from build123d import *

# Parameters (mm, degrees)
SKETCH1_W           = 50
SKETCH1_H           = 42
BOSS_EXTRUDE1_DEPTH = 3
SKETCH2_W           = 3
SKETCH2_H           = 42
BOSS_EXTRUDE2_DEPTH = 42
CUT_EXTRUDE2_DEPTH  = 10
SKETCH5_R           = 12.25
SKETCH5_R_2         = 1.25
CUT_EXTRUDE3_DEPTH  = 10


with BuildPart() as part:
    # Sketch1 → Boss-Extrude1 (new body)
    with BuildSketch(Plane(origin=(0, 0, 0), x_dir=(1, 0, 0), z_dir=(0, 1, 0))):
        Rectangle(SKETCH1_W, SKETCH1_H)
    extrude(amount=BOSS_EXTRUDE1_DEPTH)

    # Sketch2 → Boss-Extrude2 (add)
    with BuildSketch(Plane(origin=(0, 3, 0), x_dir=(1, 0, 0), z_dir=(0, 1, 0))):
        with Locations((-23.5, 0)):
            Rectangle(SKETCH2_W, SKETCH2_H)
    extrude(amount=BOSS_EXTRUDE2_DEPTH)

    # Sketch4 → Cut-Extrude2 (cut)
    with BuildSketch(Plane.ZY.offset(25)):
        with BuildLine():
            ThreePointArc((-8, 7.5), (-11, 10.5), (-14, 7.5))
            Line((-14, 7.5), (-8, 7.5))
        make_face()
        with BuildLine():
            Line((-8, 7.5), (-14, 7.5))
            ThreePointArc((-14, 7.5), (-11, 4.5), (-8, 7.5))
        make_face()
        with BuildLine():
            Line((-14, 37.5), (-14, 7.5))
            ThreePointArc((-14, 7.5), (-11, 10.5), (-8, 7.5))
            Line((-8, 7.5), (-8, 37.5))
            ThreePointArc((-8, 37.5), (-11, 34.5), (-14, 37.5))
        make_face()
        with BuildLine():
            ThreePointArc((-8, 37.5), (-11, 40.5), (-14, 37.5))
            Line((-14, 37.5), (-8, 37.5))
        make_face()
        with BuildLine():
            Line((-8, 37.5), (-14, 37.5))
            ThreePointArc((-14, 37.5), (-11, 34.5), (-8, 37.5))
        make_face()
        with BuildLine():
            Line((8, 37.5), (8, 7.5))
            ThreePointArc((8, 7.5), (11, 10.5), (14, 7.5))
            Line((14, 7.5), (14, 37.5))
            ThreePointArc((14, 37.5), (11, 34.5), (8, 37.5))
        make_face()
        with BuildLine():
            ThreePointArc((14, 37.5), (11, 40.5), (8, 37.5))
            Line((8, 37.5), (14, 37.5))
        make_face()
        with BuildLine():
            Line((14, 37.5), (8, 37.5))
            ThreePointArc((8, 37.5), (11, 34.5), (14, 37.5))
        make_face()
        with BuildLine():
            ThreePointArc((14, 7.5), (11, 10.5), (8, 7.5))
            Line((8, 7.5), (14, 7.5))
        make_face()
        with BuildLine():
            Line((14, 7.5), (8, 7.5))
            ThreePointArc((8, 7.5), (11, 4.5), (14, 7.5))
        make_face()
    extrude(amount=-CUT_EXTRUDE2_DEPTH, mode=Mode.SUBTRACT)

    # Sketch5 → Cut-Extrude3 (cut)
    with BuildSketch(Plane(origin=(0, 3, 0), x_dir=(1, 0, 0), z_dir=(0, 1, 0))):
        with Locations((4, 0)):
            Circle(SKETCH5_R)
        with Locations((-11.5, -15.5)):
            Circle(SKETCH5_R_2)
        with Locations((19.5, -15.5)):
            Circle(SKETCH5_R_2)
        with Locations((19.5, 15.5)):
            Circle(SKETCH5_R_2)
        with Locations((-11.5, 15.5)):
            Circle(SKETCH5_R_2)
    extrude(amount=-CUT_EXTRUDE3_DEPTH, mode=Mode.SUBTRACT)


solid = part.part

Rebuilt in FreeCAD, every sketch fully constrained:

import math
import FreeCAD as App
import Part
import Sketcher

V = App.Vector

doc = App.newDocument("Part")
params = doc.addObject("Spreadsheet::Sheet", "Params")
for row, (alias, value) in enumerate([
    ("sketch1_width", "50 mm"),
    ("sketch1_height", "42 mm"),
    ("pad1_length", "3 mm"),
    ("sketch2_width", "3 mm"),
    ("sketch2_height", "42 mm"),
    ("pad2_length", "42 mm"),
    ("sketch3_radius", "3 mm"),
    ("sketch3_width", "30 mm"),
    ("pocket1_length", "10 mm"),
    ("sketch4_diameter", "24.5 mm"),
    ("sketch4_diameter2", "2.5 mm"),
    ("pocket2_length", "10 mm"),
], start=1):
    params.set(f"A{row}", alias)
    params.set(f"B{row}", "=" + value)
    params.setAlias(f"B{row}", alias)

body = doc.addObject("PartDesign::Body", "Body")

# Sketch on XZ plane
sketch1 = body.newObject("Sketcher::SketchObject", "Sketch")
sketch1.AttachmentSupport = (doc.getObject("XZ_Plane"), [""])
sketch1.MapMode = "FlatFace"
sketch1.addGeometry(Part.LineSegment(V(-25, -21, 0), V(-25, 21, 0)), False)
sketch1.addGeometry(Part.LineSegment(V(-25, 21, 0), V(25, 21, 0)), False)
sketch1.addGeometry(Part.LineSegment(V(25, 21, 0), V(25, -21, 0)), False)
sketch1.addGeometry(Part.LineSegment(V(25, -21, 0), V(-25, -21, 0)), False)
sketch1.addConstraint(Sketcher.Constraint("Coincident", 0, 2, 1, 1))
sketch1.addConstraint(Sketcher.Constraint("Coincident", 1, 2, 2, 1))
sketch1.addConstraint(Sketcher.Constraint("Coincident", 2, 2, 3, 1))
sketch1.addConstraint(Sketcher.Constraint("Coincident", 3, 2, 0, 1))
sketch1.addConstraint(Sketcher.Constraint("Vertical", 0))
sketch1.addConstraint(Sketcher.Constraint("Horizontal", 1))
sketch1.addConstraint(Sketcher.Constraint("Vertical", 2))
sketch1.addConstraint(Sketcher.Constraint("Horizontal", 3))
sketch1.addConstraint(Sketcher.Constraint("Symmetric", 0, 2, 2, 2, -1, 1))
sketch1.addConstraint(Sketcher.Constraint("DistanceX", 1, 1, 1, 2, 50.0))
sketch1.addConstraint(Sketcher.Constraint("DistanceY", 0, 1, 0, 2, 42.0))
sketch1.setExpression("Constraints[9]", "Params.sketch1_width")
sketch1.setExpression("Constraints[10]", "Params.sketch1_height")
pad1 = body.newObject("PartDesign::Pad", "Pad")
pad1.Profile = sketch1
pad1.setExpression("Length", "Params.pad1_length")
pad1.Reversed = True

# Sketch on XZ plane
sketch2 = body.newObject("Sketcher::SketchObject", "Sketch001")
sketch2.AttachmentSupport = (doc.getObject("XZ_Plane"), [""])
sketch2.MapMode = "FlatFace"
sketch2.AttachmentOffset = App.Placement(V(0, 0, -3), App.Rotation())
sketch2.addGeometry(Part.LineSegment(V(-25, -21, 0), V(-25, 21, 0)), False)
sketch2.addGeometry(Part.LineSegment(V(-25, 21, 0), V(-22, 21, 0)), False)
sketch2.addGeometry(Part.LineSegment(V(-22, 21, 0), V(-22, -21, 0)), False)
sketch2.addGeometry(Part.LineSegment(V(-22, -21, 0), V(-25, -21, 0)), False)
sketch2.addConstraint(Sketcher.Constraint("Coincident", 0, 2, 1, 1))
sketch2.addConstraint(Sketcher.Constraint("Coincident", 1, 2, 2, 1))
sketch2.addConstraint(Sketcher.Constraint("Coincident", 2, 2, 3, 1))
sketch2.addConstraint(Sketcher.Constraint("Coincident", 3, 2, 0, 1))
sketch2.addConstraint(Sketcher.Constraint("Vertical", 0))
sketch2.addConstraint(Sketcher.Constraint("Horizontal", 1))
sketch2.addConstraint(Sketcher.Constraint("Vertical", 2))
sketch2.addConstraint(Sketcher.Constraint("Horizontal", 3))
sketch2.addConstraint(Sketcher.Constraint("DistanceX", 1, 1, 1, 2, 3.0))
sketch2.addConstraint(Sketcher.Constraint("DistanceY", 0, 1, 0, 2, 42.0))
sketch2.addConstraint(Sketcher.Constraint("DistanceX", 0, 2, -1, 1, 25.0))
sketch2.addConstraint(Sketcher.Constraint("DistanceY", -1, 1, 0, 2, 21.0))
sketch2.setExpression("Constraints[8]", "Params.sketch2_width")
sketch2.setExpression("Constraints[9]", "Params.sketch2_height")
pad2 = body.newObject("PartDesign::Pad", "Pad001")
pad2.Profile = sketch2
pad2.setExpression("Length", "Params.pad2_length")
pad2.Reversed = True

# Sketch on YZ plane
sketch3 = body.newObject("Sketcher::SketchObject", "Sketch002")
sketch3.AttachmentSupport = (doc.getObject("YZ_Plane"), [""])
sketch3.MapMode = "FlatFace"
sketch3.AttachmentOffset = App.Placement(V(0, 0, -25), App.Rotation())
sketch3.addGeometry(Part.LineSegment(V(7.5, -8, 0), V(37.5, -8, 0)), False)
sketch3.addGeometry(Part.ArcOfCircle(Part.Circle(V(37.5, -11, 0), V(0, 0, 1), 3), math.radians(-90), math.radians(90)), False)
sketch3.addGeometry(Part.LineSegment(V(37.5, -14, 0), V(7.5, -14, 0)), False)
sketch3.addGeometry(Part.ArcOfCircle(Part.Circle(V(7.5, -11, 0), V(0, 0, 1), 3), math.radians(90), math.radians(270)), False)
sketch3.addGeometry(Part.ArcOfCircle(Part.Circle(V(37.5, 11, 0), V(0, 0, 1), 3), math.radians(-90), math.radians(90)), False)
sketch3.addGeometry(Part.LineSegment(V(37.5, 8, 0), V(7.5, 8, 0)), False)
sketch3.addGeometry(Part.ArcOfCircle(Part.Circle(V(7.5, 11, 0), V(0, 0, 1), 3), math.radians(90), math.radians(270)), False)
sketch3.addGeometry(Part.LineSegment(V(7.5, 14, 0), V(37.5, 14, 0)), False)
sketch3.addConstraint(Sketcher.Constraint("Tangent", 0, 2, 1, 2))
sketch3.addConstraint(Sketcher.Constraint("Tangent", 1, 1, 2, 1))
sketch3.addConstraint(Sketcher.Constraint("Tangent", 2, 2, 3, 2))
sketch3.addConstraint(Sketcher.Constraint("Tangent", 3, 1, 0, 1))
sketch3.addConstraint(Sketcher.Constraint("Tangent", 4, 1, 5, 1))
sketch3.addConstraint(Sketcher.Constraint("Tangent", 5, 2, 6, 2))
sketch3.addConstraint(Sketcher.Constraint("Tangent", 6, 1, 7, 1))
sketch3.addConstraint(Sketcher.Constraint("Tangent", 7, 2, 4, 2))
sketch3.addConstraint(Sketcher.Constraint("Horizontal", 0))
sketch3.addConstraint(Sketcher.Constraint("Horizontal", 2))
sketch3.addConstraint(Sketcher.Constraint("Horizontal", 5))
sketch3.addConstraint(Sketcher.Constraint("Horizontal", 7))
sketch3.addConstraint(Sketcher.Constraint("Equal", 3, 4))
sketch3.addConstraint(Sketcher.Constraint("Symmetric", 1, 3, 4, 3, -1))
sketch3.addConstraint(Sketcher.Constraint("Vertical", 3, 3, 6, 3))
sketch3.addConstraint(Sketcher.Constraint("Radius", 1, 3.0))
sketch3.addConstraint(Sketcher.Constraint("DistanceX", 0, 1, 0, 2, 30.0))
sketch3.addConstraint(Sketcher.Constraint("DistanceY", 1, 3, -1, 1, 11.0))
sketch3.addConstraint(Sketcher.Constraint("DistanceX", -1, 1, 1, 3, 37.5))
sketch3.setExpression("Constraints[15]", "Params.sketch3_radius")
sketch3.setExpression("Constraints[16]", "Params.sketch3_width")
pocket1 = body.newObject("PartDesign::Pocket", "Pocket")
pocket1.Profile = sketch3
pocket1.setExpression("Length", "Params.pocket1_length")
pocket1.Reversed = True

# Sketch on XZ plane
sketch4 = body.newObject("Sketcher::SketchObject", "Sketch003")
sketch4.AttachmentSupport = (doc.getObject("XZ_Plane"), [""])
sketch4.MapMode = "FlatFace"
sketch4.AttachmentOffset = App.Placement(V(0, 0, -3), App.Rotation())
sketch4.addGeometry(Part.Circle(V(4, 0, 0), V(0, 0, 1), 12.2), False)
sketch4.addGeometry(Part.Circle(V(-11.5, 15.5, 0), V(0, 0, 1), 1.2), False)
sketch4.addGeometry(Part.Circle(V(19.5, 15.5, 0), V(0, 0, 1), 1.2), False)
sketch4.addGeometry(Part.Circle(V(19.5, -15.5, 0), V(0, 0, 1), 1.2), False)
sketch4.addGeometry(Part.Circle(V(-11.5, -15.5, 0), V(0, 0, 1), 1.2), False)
sketch4.addConstraint(Sketcher.Constraint("Equal", 1, 2))
sketch4.addConstraint(Sketcher.Constraint("Equal", 2, 3))
sketch4.addConstraint(Sketcher.Constraint("Equal", 3, 4))
sketch4.addConstraint(Sketcher.Constraint("Symmetric", 2, 3, 3, 3, -1))
sketch4.addConstraint(Sketcher.Constraint("Symmetric", 1, 3, 4, 3, -1))
sketch4.addConstraint(Sketcher.Constraint("PointOnObject", 0, 3, -1))
sketch4.addConstraint(Sketcher.Constraint("Horizontal", 1, 3, 2, 3))
sketch4.addConstraint(Sketcher.Constraint("Diameter", 0, 24.5))
sketch4.addConstraint(Sketcher.Constraint("Diameter", 1, 2.5))
sketch4.addConstraint(Sketcher.Constraint("DistanceX", -1, 1, 0, 3, 4.0))
sketch4.addConstraint(Sketcher.Constraint("DistanceX", 1, 3, 2, 3, 31.0))
sketch4.addConstraint(Sketcher.Constraint("DistanceY", 3, 3, 2, 3, 31.0))
sketch4.addConstraint(Sketcher.Constraint("DistanceX", 1, 3, -1, 1, 11.5))
sketch4.setExpression("Constraints[7]", "Params.sketch4_diameter")
sketch4.setExpression("Constraints[8]", "Params.sketch4_diameter2")
pocket2 = body.newObject("PartDesign::Pocket", "Pocket001")
pocket2.Profile = sketch4
pocket2.setExpression("Length", "Params.pocket2_length")
pocket2.Reversed = True

doc.recompute()
